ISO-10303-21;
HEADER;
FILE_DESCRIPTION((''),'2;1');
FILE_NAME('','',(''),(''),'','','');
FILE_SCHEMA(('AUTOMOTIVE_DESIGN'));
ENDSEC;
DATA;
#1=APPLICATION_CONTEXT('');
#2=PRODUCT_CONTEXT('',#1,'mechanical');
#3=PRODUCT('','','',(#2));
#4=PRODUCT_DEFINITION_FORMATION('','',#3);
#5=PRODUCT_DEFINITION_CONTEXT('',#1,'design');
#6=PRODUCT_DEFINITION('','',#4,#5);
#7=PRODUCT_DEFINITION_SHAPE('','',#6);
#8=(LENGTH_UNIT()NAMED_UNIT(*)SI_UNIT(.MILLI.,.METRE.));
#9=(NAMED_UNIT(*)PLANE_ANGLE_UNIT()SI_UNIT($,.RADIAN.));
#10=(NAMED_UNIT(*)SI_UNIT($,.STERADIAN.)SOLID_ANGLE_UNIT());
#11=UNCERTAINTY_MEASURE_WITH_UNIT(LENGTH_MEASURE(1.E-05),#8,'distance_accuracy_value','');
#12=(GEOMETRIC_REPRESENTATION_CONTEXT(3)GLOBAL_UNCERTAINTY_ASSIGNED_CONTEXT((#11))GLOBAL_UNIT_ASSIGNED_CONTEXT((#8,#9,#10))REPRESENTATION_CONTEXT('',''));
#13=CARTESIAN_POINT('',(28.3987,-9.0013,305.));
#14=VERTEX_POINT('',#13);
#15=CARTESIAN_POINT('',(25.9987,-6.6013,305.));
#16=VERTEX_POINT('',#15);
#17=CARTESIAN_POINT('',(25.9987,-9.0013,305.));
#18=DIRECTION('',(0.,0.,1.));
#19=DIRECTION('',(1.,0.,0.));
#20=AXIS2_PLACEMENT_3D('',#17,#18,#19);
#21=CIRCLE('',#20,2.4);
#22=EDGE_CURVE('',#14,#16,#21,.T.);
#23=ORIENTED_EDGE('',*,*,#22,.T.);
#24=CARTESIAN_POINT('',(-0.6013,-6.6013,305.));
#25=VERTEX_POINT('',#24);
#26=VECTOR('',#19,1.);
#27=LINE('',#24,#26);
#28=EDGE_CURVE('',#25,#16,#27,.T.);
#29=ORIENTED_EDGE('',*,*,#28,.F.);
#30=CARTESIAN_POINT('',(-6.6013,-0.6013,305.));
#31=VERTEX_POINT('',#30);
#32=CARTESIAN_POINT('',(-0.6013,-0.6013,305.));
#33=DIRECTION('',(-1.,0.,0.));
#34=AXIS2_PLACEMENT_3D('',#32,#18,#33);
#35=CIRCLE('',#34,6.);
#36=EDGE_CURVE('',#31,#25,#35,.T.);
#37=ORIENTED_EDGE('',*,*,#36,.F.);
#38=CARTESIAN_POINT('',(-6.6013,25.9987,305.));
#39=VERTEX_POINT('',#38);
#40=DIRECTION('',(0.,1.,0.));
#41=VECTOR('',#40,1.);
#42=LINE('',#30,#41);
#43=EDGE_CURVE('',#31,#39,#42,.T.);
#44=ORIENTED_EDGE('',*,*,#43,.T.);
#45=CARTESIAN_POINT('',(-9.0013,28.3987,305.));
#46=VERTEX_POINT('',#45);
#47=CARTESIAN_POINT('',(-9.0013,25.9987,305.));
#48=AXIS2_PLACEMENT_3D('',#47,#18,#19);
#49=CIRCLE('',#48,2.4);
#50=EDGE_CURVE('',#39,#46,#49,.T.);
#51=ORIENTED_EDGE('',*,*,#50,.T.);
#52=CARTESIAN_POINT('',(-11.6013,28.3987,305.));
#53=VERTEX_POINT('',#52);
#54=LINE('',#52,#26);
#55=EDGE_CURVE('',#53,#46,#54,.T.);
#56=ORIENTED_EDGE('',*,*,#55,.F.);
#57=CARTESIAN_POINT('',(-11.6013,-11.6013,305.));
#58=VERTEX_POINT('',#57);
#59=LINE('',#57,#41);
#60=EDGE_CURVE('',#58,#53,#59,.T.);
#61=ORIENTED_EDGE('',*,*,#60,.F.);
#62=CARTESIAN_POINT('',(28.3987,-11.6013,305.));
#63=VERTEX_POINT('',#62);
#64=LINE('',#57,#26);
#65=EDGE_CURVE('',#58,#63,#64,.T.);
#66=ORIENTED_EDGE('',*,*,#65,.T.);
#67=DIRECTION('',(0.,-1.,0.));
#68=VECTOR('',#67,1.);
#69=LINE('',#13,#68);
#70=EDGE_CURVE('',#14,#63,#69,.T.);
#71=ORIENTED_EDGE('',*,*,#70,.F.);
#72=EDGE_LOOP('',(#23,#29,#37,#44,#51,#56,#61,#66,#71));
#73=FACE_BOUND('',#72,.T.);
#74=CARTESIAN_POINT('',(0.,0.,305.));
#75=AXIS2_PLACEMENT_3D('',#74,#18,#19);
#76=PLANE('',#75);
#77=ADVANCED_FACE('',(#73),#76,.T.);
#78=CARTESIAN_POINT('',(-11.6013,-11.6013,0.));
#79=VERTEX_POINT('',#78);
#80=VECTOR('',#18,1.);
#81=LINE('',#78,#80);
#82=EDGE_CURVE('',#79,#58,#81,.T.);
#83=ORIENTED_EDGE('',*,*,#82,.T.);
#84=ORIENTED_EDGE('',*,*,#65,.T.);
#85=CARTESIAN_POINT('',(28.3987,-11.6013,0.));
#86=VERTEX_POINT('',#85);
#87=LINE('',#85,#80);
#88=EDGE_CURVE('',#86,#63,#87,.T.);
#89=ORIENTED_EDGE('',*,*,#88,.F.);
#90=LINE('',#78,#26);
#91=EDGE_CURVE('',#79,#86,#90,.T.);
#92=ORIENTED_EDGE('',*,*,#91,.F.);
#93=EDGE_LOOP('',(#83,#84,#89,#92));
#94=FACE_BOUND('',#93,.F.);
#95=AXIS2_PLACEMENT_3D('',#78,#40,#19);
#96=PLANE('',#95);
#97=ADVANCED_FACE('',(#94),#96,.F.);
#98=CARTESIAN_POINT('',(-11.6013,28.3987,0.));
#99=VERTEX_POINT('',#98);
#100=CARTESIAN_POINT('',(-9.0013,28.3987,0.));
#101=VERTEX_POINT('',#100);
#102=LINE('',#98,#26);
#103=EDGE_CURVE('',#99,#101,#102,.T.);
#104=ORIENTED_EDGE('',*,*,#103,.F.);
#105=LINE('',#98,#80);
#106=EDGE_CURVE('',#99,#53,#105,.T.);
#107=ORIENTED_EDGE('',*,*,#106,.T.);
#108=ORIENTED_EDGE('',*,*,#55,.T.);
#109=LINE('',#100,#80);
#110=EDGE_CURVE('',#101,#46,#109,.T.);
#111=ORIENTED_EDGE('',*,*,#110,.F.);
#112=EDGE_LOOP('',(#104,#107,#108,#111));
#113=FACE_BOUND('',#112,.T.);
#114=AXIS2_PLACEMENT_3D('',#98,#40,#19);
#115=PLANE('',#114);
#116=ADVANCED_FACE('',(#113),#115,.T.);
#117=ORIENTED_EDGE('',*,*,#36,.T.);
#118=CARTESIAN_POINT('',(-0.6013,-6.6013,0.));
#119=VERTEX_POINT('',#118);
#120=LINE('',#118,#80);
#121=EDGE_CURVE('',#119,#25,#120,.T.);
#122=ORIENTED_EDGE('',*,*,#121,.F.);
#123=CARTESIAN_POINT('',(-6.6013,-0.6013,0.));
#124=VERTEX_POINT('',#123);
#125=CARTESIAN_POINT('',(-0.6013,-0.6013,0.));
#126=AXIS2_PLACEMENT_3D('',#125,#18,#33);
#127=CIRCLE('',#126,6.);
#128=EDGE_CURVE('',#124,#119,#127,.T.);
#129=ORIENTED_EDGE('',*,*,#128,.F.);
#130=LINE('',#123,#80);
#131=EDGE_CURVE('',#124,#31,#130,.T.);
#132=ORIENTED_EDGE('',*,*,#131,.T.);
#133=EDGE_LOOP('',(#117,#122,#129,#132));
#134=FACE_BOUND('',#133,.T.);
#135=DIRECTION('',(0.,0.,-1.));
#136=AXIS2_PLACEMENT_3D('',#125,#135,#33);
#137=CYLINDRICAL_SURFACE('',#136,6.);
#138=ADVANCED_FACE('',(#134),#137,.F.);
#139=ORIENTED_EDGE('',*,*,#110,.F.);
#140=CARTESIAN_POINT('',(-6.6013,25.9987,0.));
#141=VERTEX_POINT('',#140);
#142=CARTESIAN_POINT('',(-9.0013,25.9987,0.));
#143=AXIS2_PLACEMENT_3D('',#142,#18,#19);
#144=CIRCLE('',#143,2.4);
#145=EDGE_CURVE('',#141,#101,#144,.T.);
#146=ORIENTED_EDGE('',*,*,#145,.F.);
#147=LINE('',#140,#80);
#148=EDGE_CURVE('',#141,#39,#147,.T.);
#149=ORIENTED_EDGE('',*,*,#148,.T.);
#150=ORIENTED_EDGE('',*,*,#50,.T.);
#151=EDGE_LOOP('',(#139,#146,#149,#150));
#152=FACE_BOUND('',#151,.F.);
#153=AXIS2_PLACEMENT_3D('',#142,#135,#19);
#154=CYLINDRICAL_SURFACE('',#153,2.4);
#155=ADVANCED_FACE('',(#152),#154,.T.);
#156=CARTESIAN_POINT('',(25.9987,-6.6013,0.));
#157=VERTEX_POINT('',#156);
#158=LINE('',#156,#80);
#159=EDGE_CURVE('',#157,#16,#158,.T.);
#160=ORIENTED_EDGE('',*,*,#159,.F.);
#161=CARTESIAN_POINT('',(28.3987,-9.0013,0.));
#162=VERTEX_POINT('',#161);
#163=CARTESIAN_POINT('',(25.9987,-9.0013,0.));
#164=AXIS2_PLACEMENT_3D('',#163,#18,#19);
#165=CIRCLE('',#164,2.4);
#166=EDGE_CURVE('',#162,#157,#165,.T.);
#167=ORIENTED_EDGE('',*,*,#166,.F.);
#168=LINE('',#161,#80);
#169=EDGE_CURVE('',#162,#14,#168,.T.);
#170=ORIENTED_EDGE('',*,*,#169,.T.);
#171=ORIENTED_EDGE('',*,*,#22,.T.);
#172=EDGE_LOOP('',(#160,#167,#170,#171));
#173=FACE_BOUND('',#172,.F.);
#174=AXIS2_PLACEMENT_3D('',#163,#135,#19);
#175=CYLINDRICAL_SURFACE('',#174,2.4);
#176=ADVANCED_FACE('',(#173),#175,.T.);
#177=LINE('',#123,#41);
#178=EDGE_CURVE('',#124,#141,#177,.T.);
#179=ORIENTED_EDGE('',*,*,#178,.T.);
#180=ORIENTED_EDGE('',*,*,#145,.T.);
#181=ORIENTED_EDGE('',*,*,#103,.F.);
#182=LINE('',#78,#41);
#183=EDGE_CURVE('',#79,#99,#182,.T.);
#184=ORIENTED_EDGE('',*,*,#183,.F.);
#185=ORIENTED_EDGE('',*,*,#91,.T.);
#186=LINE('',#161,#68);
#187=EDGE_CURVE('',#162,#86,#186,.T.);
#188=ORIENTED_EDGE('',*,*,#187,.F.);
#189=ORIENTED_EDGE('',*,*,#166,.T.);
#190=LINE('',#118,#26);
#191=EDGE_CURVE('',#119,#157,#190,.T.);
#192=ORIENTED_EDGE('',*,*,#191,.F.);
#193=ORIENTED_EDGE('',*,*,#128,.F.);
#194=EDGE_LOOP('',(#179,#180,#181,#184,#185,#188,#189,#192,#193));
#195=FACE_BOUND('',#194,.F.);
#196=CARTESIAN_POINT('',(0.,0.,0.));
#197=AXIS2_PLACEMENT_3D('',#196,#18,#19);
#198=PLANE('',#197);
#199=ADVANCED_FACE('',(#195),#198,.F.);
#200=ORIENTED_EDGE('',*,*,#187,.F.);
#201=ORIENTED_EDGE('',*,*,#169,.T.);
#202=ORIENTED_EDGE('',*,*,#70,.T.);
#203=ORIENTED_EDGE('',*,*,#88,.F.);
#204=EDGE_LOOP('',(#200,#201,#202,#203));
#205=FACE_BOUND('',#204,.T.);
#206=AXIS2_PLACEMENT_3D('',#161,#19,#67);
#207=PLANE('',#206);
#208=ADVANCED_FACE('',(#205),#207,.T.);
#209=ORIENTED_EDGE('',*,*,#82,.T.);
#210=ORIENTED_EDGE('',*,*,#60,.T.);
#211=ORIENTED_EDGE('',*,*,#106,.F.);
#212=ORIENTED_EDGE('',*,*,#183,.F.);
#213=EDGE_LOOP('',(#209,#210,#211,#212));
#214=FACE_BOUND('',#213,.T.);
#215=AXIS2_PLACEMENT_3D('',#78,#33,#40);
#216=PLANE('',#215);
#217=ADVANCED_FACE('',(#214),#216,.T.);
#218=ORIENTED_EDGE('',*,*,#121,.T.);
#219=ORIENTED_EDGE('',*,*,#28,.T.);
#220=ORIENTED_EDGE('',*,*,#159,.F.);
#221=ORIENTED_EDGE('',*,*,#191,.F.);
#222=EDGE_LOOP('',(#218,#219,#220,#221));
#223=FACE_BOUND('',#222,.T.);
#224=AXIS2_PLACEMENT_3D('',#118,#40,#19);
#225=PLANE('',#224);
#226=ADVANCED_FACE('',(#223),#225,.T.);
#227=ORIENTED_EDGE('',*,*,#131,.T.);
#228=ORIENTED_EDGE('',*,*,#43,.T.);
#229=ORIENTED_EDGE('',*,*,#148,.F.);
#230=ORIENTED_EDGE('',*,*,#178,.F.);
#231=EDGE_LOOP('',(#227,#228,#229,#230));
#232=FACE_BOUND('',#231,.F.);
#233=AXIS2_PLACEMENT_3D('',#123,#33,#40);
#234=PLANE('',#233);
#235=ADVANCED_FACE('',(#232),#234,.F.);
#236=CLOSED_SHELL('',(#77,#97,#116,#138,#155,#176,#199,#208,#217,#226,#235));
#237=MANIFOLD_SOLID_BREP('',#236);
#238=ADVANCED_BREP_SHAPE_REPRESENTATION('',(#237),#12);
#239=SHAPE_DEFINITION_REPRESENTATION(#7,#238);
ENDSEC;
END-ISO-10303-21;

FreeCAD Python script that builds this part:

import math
import FreeCAD as App
import Part
import Sketcher
from FreeCAD import Vector

doc = App.newDocument("Part")
body = doc.addObject("PartDesign::Body", "Body")

# Sketch on XY plane
sketch1 = doc.addObject("Sketcher::SketchObject", "Sketch")
body.addObject(sketch1)
sketch1.AttachmentSupport = (doc.XY_Plane, [""])
sketch1.MapMode = "FlatFace"
sketch1.addGeometry(Part.ArcOfCircle(Part.Circle(Vector(-0.6, -0.6, 0), Vector(0, 0, 1), 6), math.radians(180), math.radians(270)), False)
sketch1.addGeometry(Part.LineSegment(Vector(-6.6, -0.6, 0), Vector(-6.6, 26, 0)), False)
sketch1.addGeometry(Part.ArcOfCircle(Part.Circle(Vector(-9, 26, 0), Vector(0, 0, 1), 2.4), math.radians(0), math.radians(90)), False)
sketch1.addGeometry(Part.LineSegment(Vector(-9, 28.4, 0), Vector(-11.6, 28.4, 0)), False)
sketch1.addGeometry(Part.LineSegment(Vector(-11.6, 28.4, 0), Vector(-11.6, -11.6, 0)), False)
sketch1.addGeometry(Part.LineSegment(Vector(-11.6, -11.6, 0), Vector(28.4, -11.6, 0)), False)
sketch1.addGeometry(Part.LineSegment(Vector(28.4, -11.6, 0), Vector(28.4, -9, 0)), False)
sketch1.addGeometry(Part.ArcOfCircle(Part.Circle(Vector(26, -9, 0), Vector(0, 0, 1), 2.4), math.radians(0), math.radians(90)), False)
sketch1.addGeometry(Part.LineSegment(Vector(26, -6.6, 0), Vector(-0.6, -6.6, 0)), False)
sketch1.addConstraint(Sketcher.Constraint("Tangent", 0, 1, 1, 1))
sketch1.addConstraint(Sketcher.Constraint("Tangent", 1, 2, 2, 1))
sketch1.addConstraint(Sketcher.Constraint("Tangent", 2, 2, 3, 1))
sketch1.addConstraint(Sketcher.Constraint("Coincident", 3, 2, 4, 1))
sketch1.addConstraint(Sketcher.Constraint("Coincident", 4, 2, 5, 1))
sketch1.addConstraint(Sketcher.Constraint("Coincident", 5, 2, 6, 1))
sketch1.addConstraint(Sketcher.Constraint("Tangent", 6, 2, 7, 1))
sketch1.addConstraint(Sketcher.Constraint("Tangent", 7, 2, 8, 1))
sketch1.addConstraint(Sketcher.Constraint("Tangent", 8, 2, 0, 2))
sketch1.addConstraint(Sketcher.Constraint("Vertical", 1))
sketch1.addConstraint(Sketcher.Constraint("Horizontal", 3))
sketch1.addConstraint(Sketcher.Constraint("Vertical", 4))
sketch1.addConstraint(Sketcher.Constraint("Horizontal", 5))
sketch1.addConstraint(Sketcher.Constraint("Vertical", 6))
sketch1.addConstraint(Sketcher.Constraint("Horizontal", 8))
sketch1.addConstraint(Sketcher.Constraint("Equal", 2, 7))
sketch1.addConstraint(Sketcher.Constraint("Equal", 8, 1))
sketch1.addConstraint(Sketcher.Constraint("Equal", 5, 4))
sketch1.addConstraint(Sketcher.Constraint("Radius", 0, 6.0))
sketch1.addConstraint(Sketcher.Constraint("Radius", 2, 2.4))
sketch1.addConstraint(Sketcher.Constraint("DistanceX", 5, 1, 5, 2, 40.0))
sketch1.addConstraint(Sketcher.Constraint("DistanceX", 3, 2, 1, 2, 5.0))
sketch1.addConstraint(Sketcher.Constraint("DistanceX", 3, 2, -1, 1, 11.6013))
sketch1.addConstraint(Sketcher.Constraint("DistanceY", 4, 2, -1, 1, 11.6013))
pad1 = doc.addObject("PartDesign::Pad", "Pad")
body.addObject(pad1)
pad1.Profile = sketch1
pad1.Length = 305

doc.recompute()
